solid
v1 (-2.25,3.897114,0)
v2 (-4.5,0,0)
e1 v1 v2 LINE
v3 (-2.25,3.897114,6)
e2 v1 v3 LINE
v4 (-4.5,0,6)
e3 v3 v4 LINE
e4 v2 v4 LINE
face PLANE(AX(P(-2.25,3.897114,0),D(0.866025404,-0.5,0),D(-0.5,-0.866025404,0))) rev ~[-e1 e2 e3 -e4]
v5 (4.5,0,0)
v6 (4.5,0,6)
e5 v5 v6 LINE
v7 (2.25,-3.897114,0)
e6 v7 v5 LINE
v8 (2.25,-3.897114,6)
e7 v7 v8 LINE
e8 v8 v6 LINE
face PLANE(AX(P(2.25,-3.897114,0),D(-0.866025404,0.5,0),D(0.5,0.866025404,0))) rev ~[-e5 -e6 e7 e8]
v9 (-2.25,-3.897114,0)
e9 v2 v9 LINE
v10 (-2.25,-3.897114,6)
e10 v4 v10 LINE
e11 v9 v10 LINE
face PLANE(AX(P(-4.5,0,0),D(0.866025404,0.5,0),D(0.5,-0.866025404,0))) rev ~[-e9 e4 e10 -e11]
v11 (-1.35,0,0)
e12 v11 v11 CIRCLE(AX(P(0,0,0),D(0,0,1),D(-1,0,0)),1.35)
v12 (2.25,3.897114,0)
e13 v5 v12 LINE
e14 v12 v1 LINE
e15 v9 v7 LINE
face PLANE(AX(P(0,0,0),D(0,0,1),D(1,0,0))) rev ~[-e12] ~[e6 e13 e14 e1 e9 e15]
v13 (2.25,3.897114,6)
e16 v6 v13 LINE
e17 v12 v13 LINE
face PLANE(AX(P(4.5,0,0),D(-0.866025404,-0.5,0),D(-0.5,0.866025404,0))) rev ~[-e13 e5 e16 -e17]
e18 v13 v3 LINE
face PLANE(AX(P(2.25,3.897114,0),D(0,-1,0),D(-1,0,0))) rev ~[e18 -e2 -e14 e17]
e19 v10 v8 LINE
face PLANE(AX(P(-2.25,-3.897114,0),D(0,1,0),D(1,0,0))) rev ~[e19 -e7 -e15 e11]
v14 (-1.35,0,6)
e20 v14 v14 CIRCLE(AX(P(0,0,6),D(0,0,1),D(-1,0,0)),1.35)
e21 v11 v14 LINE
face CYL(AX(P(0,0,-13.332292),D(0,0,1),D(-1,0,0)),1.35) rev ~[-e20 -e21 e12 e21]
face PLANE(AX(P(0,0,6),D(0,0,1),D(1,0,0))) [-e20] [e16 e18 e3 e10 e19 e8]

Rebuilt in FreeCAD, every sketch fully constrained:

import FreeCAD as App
import Part
import Sketcher
from FreeCAD import Vector
Q = App.Units.Quantity

doc = App.newDocument("Part")
body = doc.addObject("PartDesign::Body", "Body")

# Sketch on XY plane
sketch1 = doc.addObject("Sketcher::SketchObject", "Sketch")
body.addObject(sketch1)
sketch1.AttachmentSupport = (doc.XY_Plane, [""])
sketch1.MapMode = "FlatFace"
sketch1.addGeometry(Part.LineSegment(Vector(2.25, -3.897114, 0), Vector(4.5, 0, 0)), False)
sketch1.addGeometry(Part.LineSegment(Vector(4.5, 0, 0), Vector(2.25, 3.897114, 0)), False)
sketch1.addGeometry(Part.LineSegment(Vector(2.25, 3.897114, 0), Vector(-2.25, 3.897114, 0)), False)
sketch1.addGeometry(Part.LineSegment(Vector(-2.25, 3.897114, 0), Vector(-4.5, 0, 0)), False)
sketch1.addGeometry(Part.LineSegment(Vector(-4.5, 0, 0), Vector(-2.25, -3.897114, 0)), False)
sketch1.addGeometry(Part.LineSegment(Vector(-2.25, -3.897114, 0), Vector(2.25, -3.897114, 0)), False)
sketch1.addConstraint(Sketcher.Constraint("Coincident", 0, 2, 1, 1))
sketch1.addConstraint(Sketcher.Constraint("Coincident", 1, 2, 2, 1))
sketch1.addConstraint(Sketcher.Constraint("Coincident", 2, 2, 3, 1))
sketch1.addConstraint(Sketcher.Constraint("Coincident", 3, 2, 4, 1))
sketch1.addConstraint(Sketcher.Constraint("Coincident", 4, 2, 5, 1))
sketch1.addConstraint(Sketcher.Constraint("Coincident", 5, 2, 0, 1))
sketch1.addConstraint(Sketcher.Constraint("Horizontal", 2))
sketch1.addConstraint(Sketcher.Constraint("Horizontal", 5))
sketch1.addConstraint(Sketcher.Constraint("Symmetric", 0, 2, 3, 2, -1, 1))
sketch1.addConstraint(Sketcher.Constraint("Symmetric", 1, 2, 4, 2, -1, 1))
sketch1.addConstraint(Sketcher.Constraint("PointOnObject", 0, 2, -1))
sketch1.addConstraint(Sketcher.Constraint("Parallel", 0, 3))
sketch1.addConstraint(Sketcher.Constraint("Vertical", 2, 2, 4, 2))
sketch1.addConstraint(Sketcher.Constraint("Angle", 0, Q("60 deg")))
sketch1.addConstraint(Sketcher.Constraint("DistanceX", 2, 2, 2, 1, Q("4.5 mm")))
sketch1.addConstraint(Sketcher.Constraint("DistanceX", 3, 2, 0, 2, Q("9 mm")))
pad1 = doc.addObject("PartDesign::Pad", "Pad")
body.addObject(pad1)
pad1.Profile = sketch1
pad1.Length = 6

# Sketch on XY plane
sketch2 = doc.addObject("Sketcher::SketchObject", "Sketch001")
body.addObject(sketch2)
sketch2.AttachmentSupport = (doc.XY_Plane, [""])
sketch2.MapMode = "FlatFace"
sketch2.addGeometry(Part.Circle(Vector(0, 0, 0), Vector(0, 0, 1), 1.35), False)
sketch2.addConstraint(Sketcher.Constraint("Coincident", 0, 3, -1, 1))
sketch2.addConstraint(Sketcher.Constraint("Diameter", 0, Q("2.7 mm")))
doc.recompute()
hole = doc.addObject("PartDesign::Hole", "Hole")
body.addObject(hole)
hole.Profile = sketch2
hole.ThreadType = "None"
hole.Diameter = 2.7
hole.DepthType = "ThroughAll"
hole.Reversed = True

doc.recompute()
